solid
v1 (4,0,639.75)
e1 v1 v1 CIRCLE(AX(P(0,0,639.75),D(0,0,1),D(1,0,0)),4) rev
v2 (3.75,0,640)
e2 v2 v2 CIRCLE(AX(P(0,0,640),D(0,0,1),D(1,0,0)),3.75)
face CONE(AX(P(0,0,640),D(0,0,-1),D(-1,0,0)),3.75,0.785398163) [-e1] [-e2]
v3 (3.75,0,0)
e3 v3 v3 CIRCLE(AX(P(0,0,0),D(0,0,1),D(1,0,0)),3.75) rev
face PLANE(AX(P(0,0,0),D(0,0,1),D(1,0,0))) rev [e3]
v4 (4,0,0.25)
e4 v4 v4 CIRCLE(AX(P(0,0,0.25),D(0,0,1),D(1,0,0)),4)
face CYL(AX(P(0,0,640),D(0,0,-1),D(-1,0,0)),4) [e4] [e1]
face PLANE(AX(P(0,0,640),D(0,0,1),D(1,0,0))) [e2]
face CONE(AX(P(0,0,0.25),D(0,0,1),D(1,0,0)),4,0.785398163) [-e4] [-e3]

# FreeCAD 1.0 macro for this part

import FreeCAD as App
import Part
import Sketcher
from FreeCAD import Vector
Q = App.Units.Quantity


def edges_at(feature, points):
    """Names of the edges that pass closest to the given points."""
    edges = feature.Shape.Edges
    near = lambda p: min(range(len(edges)), key=lambda i: edges[i].distToShape(Part.Vertex(*p))[0])
    return sorted({f"Edge{near(p) + 1}" for p in points})

doc = App.newDocument("Part")
body = doc.addObject("PartDesign::Body", "Body")

sketch1 = body.newObject("Sketcher::SketchObject", "Sketch")
sketch1.AttachmentSupport = (doc.getObject("XY_Plane"), [""])
sketch1.MapMode = "FlatFace"
sketch1.addGeometry(Part.Circle(Vector(0, 0, 0), Vector(0, 0, 1), 4), False)
sketch1.addConstraint(Sketcher.Constraint("Coincident", 0, 3, -1, 1))
sketch1.addConstraint(Sketcher.Constraint("Diameter", 0, Q("8 mm")))
pad1 = body.newObject("PartDesign::Pad", "Pad")
pad1.Profile = sketch1
pad1.Length = 640
doc.recompute()

chamfer = body.newObject("PartDesign::Chamfer", "Chamfer")
chamfer.Base = (pad1, edges_at(pad1, [(-4, 0, 0), (-4, 0, 640)]))
chamfer.Size = 0.25

doc.recompute()
